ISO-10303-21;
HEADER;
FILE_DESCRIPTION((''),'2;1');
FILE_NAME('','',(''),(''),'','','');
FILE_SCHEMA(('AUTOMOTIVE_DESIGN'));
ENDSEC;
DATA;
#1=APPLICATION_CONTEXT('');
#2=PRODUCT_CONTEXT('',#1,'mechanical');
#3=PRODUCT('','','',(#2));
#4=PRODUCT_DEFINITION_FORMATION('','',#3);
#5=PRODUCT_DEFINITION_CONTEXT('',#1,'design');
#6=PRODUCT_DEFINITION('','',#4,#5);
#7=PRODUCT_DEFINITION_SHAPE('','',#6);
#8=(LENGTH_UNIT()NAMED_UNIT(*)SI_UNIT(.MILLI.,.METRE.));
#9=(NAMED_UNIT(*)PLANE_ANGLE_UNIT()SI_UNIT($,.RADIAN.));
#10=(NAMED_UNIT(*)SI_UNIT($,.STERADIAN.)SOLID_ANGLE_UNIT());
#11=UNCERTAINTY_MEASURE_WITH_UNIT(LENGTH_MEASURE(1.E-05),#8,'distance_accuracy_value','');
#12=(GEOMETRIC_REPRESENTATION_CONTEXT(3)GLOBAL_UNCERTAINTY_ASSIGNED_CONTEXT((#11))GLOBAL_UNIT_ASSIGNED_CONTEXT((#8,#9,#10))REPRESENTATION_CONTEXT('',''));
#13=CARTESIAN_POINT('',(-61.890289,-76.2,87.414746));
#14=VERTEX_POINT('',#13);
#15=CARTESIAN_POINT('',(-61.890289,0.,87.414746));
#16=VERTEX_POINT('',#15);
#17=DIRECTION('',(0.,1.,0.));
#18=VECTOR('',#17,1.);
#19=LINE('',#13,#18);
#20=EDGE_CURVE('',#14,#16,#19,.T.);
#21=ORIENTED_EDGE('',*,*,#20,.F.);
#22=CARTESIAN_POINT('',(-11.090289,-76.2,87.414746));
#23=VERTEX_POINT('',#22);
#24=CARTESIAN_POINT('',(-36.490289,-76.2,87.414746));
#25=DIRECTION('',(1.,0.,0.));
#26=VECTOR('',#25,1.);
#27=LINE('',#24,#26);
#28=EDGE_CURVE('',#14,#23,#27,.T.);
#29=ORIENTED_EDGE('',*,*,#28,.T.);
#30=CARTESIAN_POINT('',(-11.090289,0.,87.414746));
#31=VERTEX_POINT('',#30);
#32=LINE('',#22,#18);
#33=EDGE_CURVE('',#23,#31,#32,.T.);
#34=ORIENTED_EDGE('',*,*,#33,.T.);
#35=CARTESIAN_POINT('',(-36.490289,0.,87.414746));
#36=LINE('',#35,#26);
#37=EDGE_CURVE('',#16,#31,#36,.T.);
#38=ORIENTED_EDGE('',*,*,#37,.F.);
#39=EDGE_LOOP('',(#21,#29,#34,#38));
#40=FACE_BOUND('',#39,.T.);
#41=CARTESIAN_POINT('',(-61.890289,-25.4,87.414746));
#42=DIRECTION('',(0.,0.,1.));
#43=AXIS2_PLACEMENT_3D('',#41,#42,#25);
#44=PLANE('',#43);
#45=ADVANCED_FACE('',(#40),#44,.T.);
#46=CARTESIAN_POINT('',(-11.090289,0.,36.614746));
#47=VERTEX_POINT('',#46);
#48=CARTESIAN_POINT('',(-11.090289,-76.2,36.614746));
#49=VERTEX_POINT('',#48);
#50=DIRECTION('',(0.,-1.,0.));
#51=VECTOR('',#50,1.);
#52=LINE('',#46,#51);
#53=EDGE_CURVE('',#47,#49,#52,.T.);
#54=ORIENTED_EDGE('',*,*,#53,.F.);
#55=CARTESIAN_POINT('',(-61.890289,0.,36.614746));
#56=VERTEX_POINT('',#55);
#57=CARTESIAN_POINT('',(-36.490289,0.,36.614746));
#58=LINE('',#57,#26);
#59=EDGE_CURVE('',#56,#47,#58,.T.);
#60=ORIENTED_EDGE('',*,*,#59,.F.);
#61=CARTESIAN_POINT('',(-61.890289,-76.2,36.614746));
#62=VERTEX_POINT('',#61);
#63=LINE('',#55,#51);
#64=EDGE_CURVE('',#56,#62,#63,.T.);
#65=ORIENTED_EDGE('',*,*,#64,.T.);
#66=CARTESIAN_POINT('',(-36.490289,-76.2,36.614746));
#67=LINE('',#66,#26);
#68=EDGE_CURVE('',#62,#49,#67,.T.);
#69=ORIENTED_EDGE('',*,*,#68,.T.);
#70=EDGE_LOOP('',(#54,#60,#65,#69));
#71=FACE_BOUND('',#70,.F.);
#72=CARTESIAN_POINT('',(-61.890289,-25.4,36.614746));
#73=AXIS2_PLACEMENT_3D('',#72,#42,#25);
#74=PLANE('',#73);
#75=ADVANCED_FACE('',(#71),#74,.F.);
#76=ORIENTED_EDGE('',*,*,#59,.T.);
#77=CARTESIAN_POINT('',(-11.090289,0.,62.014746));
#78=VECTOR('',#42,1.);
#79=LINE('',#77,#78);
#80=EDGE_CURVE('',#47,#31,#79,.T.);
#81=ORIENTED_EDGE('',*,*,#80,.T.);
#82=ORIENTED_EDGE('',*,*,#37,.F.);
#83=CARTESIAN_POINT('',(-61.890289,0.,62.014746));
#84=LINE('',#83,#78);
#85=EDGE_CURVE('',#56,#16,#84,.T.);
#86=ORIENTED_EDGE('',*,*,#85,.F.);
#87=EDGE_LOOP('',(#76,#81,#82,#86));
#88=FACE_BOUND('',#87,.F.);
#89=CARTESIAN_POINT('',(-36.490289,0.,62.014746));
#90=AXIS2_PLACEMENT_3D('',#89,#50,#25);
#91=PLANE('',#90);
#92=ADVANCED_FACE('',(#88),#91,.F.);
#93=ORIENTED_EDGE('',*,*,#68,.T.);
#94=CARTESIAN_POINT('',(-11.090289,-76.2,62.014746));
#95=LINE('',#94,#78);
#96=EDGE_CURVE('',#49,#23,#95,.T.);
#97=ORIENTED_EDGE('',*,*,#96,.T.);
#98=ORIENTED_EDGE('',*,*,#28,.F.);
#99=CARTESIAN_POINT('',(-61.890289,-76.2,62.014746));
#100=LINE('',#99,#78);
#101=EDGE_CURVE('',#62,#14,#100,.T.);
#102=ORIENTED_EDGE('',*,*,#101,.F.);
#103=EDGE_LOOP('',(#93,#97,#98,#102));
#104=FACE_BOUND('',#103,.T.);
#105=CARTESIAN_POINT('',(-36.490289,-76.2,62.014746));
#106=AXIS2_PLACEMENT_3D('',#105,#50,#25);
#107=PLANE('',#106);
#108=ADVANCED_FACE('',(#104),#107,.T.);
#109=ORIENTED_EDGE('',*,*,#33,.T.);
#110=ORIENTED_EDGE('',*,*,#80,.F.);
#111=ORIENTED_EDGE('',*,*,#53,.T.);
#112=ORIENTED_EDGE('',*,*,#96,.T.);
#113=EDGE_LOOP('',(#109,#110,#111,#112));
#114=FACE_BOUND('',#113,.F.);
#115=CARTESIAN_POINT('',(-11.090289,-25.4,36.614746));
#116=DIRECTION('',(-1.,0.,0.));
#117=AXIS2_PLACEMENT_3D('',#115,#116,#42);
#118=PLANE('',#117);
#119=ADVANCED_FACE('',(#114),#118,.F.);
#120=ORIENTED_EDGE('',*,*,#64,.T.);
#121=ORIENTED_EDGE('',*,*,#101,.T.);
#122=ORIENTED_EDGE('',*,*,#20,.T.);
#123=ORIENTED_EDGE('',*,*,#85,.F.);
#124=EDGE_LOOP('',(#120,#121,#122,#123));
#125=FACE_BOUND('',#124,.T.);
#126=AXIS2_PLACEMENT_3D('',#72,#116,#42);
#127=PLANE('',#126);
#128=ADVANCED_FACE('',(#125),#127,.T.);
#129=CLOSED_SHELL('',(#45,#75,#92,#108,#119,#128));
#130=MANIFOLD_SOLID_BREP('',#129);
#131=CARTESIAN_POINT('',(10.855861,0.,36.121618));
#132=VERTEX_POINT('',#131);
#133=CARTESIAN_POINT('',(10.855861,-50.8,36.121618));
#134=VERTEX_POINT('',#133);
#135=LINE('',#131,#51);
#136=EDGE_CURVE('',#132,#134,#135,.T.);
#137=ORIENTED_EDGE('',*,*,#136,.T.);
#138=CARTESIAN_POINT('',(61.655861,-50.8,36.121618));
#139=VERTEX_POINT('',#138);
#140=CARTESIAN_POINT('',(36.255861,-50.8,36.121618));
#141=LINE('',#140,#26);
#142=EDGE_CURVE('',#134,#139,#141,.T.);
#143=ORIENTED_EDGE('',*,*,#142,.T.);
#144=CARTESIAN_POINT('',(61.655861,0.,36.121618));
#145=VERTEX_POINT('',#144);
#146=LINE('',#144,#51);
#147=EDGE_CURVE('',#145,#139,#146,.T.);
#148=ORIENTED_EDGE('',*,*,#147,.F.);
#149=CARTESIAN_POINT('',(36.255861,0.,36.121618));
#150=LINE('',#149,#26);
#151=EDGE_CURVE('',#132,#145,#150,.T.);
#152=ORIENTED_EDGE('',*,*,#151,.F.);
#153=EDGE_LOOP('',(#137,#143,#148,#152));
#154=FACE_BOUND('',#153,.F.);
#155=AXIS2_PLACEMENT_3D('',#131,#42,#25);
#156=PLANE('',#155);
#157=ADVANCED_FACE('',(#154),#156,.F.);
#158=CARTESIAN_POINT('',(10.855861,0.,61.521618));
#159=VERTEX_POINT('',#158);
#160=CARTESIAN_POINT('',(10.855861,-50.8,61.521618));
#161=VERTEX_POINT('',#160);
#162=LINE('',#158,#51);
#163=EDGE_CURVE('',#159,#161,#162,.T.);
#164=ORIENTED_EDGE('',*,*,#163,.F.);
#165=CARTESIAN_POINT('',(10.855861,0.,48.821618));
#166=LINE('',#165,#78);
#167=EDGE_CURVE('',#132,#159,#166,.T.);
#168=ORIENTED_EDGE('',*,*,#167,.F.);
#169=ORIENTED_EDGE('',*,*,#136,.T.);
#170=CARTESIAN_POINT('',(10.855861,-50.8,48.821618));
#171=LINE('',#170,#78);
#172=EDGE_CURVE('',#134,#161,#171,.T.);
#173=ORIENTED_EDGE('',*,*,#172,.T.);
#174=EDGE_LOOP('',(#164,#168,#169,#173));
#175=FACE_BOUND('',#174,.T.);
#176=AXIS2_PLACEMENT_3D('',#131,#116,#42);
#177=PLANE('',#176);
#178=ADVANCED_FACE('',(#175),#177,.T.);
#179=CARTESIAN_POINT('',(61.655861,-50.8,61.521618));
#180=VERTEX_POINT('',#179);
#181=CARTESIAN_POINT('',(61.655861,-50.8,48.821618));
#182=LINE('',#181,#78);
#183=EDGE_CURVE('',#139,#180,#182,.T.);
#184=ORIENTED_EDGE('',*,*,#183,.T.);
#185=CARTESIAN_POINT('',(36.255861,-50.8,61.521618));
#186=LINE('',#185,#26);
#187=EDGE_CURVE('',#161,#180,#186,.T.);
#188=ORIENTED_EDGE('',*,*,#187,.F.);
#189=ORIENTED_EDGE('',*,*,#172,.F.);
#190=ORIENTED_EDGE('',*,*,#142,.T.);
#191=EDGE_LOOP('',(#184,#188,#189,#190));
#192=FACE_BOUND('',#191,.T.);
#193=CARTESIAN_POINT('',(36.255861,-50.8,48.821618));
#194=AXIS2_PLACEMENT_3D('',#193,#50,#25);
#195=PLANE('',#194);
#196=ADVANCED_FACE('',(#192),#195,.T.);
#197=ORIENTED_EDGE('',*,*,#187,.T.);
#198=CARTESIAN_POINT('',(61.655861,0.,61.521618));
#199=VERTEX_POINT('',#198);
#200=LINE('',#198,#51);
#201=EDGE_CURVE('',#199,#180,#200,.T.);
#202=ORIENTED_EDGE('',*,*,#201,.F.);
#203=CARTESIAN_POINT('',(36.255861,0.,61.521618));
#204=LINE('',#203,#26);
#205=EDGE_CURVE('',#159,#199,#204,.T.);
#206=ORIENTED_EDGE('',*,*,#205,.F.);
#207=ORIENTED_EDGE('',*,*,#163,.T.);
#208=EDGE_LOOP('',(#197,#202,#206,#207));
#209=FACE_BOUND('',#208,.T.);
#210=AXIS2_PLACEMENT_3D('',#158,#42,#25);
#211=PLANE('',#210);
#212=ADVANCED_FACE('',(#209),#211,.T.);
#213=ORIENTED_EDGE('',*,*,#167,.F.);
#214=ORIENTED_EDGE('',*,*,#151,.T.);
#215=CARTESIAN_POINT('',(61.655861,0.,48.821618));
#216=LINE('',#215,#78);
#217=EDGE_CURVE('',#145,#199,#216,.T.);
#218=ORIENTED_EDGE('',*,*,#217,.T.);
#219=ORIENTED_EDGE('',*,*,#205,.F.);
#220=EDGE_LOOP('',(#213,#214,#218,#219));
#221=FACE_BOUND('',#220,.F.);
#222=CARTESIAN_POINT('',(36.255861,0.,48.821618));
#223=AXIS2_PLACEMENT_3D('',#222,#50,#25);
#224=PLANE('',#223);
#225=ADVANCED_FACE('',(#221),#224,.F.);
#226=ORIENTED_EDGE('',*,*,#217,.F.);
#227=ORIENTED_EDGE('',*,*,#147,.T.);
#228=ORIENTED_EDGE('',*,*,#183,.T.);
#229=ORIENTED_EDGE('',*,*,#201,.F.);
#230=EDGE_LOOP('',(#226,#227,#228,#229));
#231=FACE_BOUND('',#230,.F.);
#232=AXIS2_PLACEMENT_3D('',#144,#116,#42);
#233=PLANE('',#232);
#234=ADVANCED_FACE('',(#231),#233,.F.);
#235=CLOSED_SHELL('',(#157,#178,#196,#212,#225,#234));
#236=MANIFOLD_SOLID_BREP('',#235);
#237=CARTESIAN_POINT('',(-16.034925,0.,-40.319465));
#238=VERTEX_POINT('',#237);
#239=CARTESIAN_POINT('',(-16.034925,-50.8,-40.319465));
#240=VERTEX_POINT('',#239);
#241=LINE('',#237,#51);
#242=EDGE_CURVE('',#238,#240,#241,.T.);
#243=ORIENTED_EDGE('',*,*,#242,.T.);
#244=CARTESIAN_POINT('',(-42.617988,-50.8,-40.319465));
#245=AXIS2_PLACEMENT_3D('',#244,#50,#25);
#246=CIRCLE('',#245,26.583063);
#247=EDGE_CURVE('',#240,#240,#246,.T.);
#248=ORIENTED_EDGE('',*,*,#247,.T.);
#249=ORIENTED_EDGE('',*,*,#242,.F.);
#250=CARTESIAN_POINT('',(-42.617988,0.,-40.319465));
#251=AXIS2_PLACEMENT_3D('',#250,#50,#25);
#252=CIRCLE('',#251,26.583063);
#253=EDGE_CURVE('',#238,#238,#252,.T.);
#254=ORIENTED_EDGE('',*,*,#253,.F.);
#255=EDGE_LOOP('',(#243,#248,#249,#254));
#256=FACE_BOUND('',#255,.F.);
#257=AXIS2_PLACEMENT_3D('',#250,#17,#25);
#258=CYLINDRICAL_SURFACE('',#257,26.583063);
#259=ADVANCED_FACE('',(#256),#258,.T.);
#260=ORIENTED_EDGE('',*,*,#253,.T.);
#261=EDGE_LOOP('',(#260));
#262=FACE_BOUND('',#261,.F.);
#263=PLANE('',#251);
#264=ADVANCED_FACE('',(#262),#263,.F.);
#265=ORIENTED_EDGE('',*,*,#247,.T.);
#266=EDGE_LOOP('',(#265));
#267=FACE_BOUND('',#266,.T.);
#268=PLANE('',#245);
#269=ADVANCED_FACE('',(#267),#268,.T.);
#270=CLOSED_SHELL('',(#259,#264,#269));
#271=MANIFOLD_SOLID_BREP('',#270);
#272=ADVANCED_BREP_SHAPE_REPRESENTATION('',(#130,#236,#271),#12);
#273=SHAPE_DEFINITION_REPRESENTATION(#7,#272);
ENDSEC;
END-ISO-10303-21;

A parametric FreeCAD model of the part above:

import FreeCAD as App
import Part
import Sketcher

V = App.Vector
Q = App.Units.Quantity

doc = App.newDocument("Part")
body = doc.addObject("PartDesign::Body", "Body")

# Sketch on XZ plane
sketch1 = body.newObject("Sketcher::SketchObject", "Sketch")
sketch1.AttachmentSupport = (doc.getObject("XZ_Plane"), [""])
sketch1.MapMode = "FlatFace"
sketch1.addGeometry(Part.LineSegment(V(-61.890289, 87.414746, 0), V(-61.890289, 36.614746, 0)), False)
sketch1.addGeometry(Part.LineSegment(V(-61.890289, 36.614746, 0), V(-11.090289, 36.614746, 0)), False)
sketch1.addGeometry(Part.LineSegment(V(-11.090289, 36.614746, 0), V(-11.090289, 87.414746, 0)), False)
sketch1.addGeometry(Part.LineSegment(V(-11.090289, 87.414746, 0), V(-61.890289, 87.414746, 0)), False)
sketch1.addConstraint(Sketcher.Constraint("Coincident", 0, 2, 1, 1))
sketch1.addConstraint(Sketcher.Constraint("Coincident", 1, 2, 2, 1))
sketch1.addConstraint(Sketcher.Constraint("Coincident", 2, 2, 3, 1))
sketch1.addConstraint(Sketcher.Constraint("Coincident", 3, 2, 0, 1))
sketch1.addConstraint(Sketcher.Constraint("Vertical", 0))
sketch1.addConstraint(Sketcher.Constraint("Horizontal", 1))
sketch1.addConstraint(Sketcher.Constraint("Vertical", 2))
sketch1.addConstraint(Sketcher.Constraint("Horizontal", 3))
sketch1.addConstraint(Sketcher.Constraint("Equal", 3, 0))
sketch1.addConstraint(Sketcher.Constraint("DistanceX", 1, 1, 1, 2, Q("2 in")))
sketch1.addConstraint(Sketcher.Constraint("DistanceX", 0, 2, -1, 1, Q("61.890289 mm")))
sketch1.addConstraint(Sketcher.Constraint("DistanceY", -1, 1, 0, 2, Q("36.614746 mm")))
pad1 = body.newObject("PartDesign::Pad", "Pad")
pad1.Profile = sketch1
pad1.Length = Q("1 in")

# Sketch on XZ plane
sketch2 = body.newObject("Sketcher::SketchObject", "Sketch001")
sketch2.AttachmentSupport = (doc.getObject("XZ_Plane"), [""])
sketch2.MapMode = "FlatFace"
sketch2.AttachmentOffset = App.Placement(V(0, 0, 1 * 25.4), App.Rotation())
sketch2.addGeometry(Part.LineSegment(V(-61.890289, 87.414746, 0), V(-61.890289, 36.614746, 0)), False)
sketch2.addGeometry(Part.LineSegment(V(-61.890289, 36.614746, 0), V(-11.090289, 36.614746, 0)), False)
sketch2.addGeometry(Part.LineSegment(V(-11.090289, 36.614746, 0), V(-11.090289, 87.414746, 0)), False)
sketch2.addGeometry(Part.LineSegment(V(-11.090289, 87.414746, 0), V(-61.890289, 87.414746, 0)), False)
sketch2.addConstraint(Sketcher.Constraint("Coincident", 0, 2, 1, 1))
sketch2.addConstraint(Sketcher.Constraint("Coincident", 1, 2, 2, 1))
sketch2.addConstraint(Sketcher.Constraint("Coincident", 2, 2, 3, 1))
sketch2.addConstraint(Sketcher.Constraint("Coincident", 3, 2, 0, 1))
sketch2.addConstraint(Sketcher.Constraint("Vertical", 0))
sketch2.addConstraint(Sketcher.Constraint("Horizontal", 1))
sketch2.addConstraint(Sketcher.Constraint("Vertical", 2))
sketch2.addConstraint(Sketcher.Constraint("Horizontal", 3))
sketch2.addConstraint(Sketcher.Constraint("Equal", 3, 0))
sketch2.addConstraint(Sketcher.Constraint("DistanceX", 1, 1, 1, 2, Q("2 in")))
sketch2.addConstraint(Sketcher.Constraint("DistanceX", 0, 2, -1, 1, Q("61.890289 mm")))
sketch2.addConstraint(Sketcher.Constraint("DistanceY", -1, 1, 0, 2, Q("36.614746 mm")))
pad2 = body.newObject("PartDesign::Pad", "Pad001")
pad2.Profile = sketch2
pad2.Length = Q("2 in")
body2 = doc.addObject("PartDesign::Body", "Body001")

# Sketch on XZ plane
sketch3 = body2.newObject("Sketcher::SketchObject", "Sketch002")
sketch3.AttachmentSupport = (doc.getObject("XZ_Plane001"), [""])
sketch3.MapMode = "FlatFace"
sketch3.addGeometry(Part.LineSegment(V(10.855861, 61.521618, 0), V(10.855861, 36.121618, 0)), False)
sketch3.addGeometry(Part.LineSegment(V(10.855861, 36.121618, 0), V(61.655861, 36.121618, 0)), False)
sketch3.addGeometry(Part.LineSegment(V(61.655861, 36.121618, 0), V(61.655861, 61.521618, 0)), False)
sketch3.addGeometry(Part.LineSegment(V(61.655861, 61.521618, 0), V(10.855861, 61.521618, 0)), False)
sketch3.addConstraint(Sketcher.Constraint("Coincident", 0, 2, 1, 1))
sketch3.addConstraint(Sketcher.Constraint("Coincident", 1, 2, 2, 1))
sketch3.addConstraint(Sketcher.Constraint("Coincident", 2, 2, 3, 1))
sketch3.addConstraint(Sketcher.Constraint("Coincident", 3, 2, 0, 1))
sketch3.addConstraint(Sketcher.Constraint("Vertical", 0))
sketch3.addConstraint(Sketcher.Constraint("Horizontal", 1))
sketch3.addConstraint(Sketcher.Constraint("Vertical", 2))
sketch3.addConstraint(Sketcher.Constraint("Horizontal", 3))
sketch3.addConstraint(Sketcher.Constraint("DistanceX", 1, 1, 1, 2, Q("2 in")))
sketch3.addConstraint(Sketcher.Constraint("DistanceY", 0, 2, 0, 1, Q("1 in")))
sketch3.addConstraint(Sketcher.Constraint("DistanceX", -1, 1, 0, 2, Q("10.855861 mm")))
sketch3.addConstraint(Sketcher.Constraint("DistanceY", -1, 1, 0, 2, Q("36.121618 mm")))
pad3 = body2.newObject("PartDesign::Pad", "Pad002")
pad3.Profile = sketch3
pad3.Length = Q("2 in")
body3 = doc.addObject("PartDesign::Body", "Body002")

# Sketch on XZ plane
sketch4 = body3.newObject("Sketcher::SketchObject", "Sketch003")
sketch4.AttachmentSupport = (doc.getObject("XZ_Plane002"), [""])
sketch4.MapMode = "FlatFace"
sketch4.addGeometry(Part.Circle(V(-42.617988, -40.319465, 0), V(0, 0, 1), 26.583063), False)
sketch4.addConstraint(Sketcher.Constraint("Diameter", 0, Q("53.166126 mm")))
sketch4.addConstraint(Sketcher.Constraint("DistanceX", 0, 3, -1, 1, Q("42.617988 mm")))
sketch4.addConstraint(Sketcher.Constraint("DistanceY", 0, 3, -1, 1, Q("40.319465 mm")))
pad4 = body3.newObject("PartDesign::Pad", "Pad003")
pad4.Profile = sketch4
pad4.Length = Q("2 in")

doc.recompute()
